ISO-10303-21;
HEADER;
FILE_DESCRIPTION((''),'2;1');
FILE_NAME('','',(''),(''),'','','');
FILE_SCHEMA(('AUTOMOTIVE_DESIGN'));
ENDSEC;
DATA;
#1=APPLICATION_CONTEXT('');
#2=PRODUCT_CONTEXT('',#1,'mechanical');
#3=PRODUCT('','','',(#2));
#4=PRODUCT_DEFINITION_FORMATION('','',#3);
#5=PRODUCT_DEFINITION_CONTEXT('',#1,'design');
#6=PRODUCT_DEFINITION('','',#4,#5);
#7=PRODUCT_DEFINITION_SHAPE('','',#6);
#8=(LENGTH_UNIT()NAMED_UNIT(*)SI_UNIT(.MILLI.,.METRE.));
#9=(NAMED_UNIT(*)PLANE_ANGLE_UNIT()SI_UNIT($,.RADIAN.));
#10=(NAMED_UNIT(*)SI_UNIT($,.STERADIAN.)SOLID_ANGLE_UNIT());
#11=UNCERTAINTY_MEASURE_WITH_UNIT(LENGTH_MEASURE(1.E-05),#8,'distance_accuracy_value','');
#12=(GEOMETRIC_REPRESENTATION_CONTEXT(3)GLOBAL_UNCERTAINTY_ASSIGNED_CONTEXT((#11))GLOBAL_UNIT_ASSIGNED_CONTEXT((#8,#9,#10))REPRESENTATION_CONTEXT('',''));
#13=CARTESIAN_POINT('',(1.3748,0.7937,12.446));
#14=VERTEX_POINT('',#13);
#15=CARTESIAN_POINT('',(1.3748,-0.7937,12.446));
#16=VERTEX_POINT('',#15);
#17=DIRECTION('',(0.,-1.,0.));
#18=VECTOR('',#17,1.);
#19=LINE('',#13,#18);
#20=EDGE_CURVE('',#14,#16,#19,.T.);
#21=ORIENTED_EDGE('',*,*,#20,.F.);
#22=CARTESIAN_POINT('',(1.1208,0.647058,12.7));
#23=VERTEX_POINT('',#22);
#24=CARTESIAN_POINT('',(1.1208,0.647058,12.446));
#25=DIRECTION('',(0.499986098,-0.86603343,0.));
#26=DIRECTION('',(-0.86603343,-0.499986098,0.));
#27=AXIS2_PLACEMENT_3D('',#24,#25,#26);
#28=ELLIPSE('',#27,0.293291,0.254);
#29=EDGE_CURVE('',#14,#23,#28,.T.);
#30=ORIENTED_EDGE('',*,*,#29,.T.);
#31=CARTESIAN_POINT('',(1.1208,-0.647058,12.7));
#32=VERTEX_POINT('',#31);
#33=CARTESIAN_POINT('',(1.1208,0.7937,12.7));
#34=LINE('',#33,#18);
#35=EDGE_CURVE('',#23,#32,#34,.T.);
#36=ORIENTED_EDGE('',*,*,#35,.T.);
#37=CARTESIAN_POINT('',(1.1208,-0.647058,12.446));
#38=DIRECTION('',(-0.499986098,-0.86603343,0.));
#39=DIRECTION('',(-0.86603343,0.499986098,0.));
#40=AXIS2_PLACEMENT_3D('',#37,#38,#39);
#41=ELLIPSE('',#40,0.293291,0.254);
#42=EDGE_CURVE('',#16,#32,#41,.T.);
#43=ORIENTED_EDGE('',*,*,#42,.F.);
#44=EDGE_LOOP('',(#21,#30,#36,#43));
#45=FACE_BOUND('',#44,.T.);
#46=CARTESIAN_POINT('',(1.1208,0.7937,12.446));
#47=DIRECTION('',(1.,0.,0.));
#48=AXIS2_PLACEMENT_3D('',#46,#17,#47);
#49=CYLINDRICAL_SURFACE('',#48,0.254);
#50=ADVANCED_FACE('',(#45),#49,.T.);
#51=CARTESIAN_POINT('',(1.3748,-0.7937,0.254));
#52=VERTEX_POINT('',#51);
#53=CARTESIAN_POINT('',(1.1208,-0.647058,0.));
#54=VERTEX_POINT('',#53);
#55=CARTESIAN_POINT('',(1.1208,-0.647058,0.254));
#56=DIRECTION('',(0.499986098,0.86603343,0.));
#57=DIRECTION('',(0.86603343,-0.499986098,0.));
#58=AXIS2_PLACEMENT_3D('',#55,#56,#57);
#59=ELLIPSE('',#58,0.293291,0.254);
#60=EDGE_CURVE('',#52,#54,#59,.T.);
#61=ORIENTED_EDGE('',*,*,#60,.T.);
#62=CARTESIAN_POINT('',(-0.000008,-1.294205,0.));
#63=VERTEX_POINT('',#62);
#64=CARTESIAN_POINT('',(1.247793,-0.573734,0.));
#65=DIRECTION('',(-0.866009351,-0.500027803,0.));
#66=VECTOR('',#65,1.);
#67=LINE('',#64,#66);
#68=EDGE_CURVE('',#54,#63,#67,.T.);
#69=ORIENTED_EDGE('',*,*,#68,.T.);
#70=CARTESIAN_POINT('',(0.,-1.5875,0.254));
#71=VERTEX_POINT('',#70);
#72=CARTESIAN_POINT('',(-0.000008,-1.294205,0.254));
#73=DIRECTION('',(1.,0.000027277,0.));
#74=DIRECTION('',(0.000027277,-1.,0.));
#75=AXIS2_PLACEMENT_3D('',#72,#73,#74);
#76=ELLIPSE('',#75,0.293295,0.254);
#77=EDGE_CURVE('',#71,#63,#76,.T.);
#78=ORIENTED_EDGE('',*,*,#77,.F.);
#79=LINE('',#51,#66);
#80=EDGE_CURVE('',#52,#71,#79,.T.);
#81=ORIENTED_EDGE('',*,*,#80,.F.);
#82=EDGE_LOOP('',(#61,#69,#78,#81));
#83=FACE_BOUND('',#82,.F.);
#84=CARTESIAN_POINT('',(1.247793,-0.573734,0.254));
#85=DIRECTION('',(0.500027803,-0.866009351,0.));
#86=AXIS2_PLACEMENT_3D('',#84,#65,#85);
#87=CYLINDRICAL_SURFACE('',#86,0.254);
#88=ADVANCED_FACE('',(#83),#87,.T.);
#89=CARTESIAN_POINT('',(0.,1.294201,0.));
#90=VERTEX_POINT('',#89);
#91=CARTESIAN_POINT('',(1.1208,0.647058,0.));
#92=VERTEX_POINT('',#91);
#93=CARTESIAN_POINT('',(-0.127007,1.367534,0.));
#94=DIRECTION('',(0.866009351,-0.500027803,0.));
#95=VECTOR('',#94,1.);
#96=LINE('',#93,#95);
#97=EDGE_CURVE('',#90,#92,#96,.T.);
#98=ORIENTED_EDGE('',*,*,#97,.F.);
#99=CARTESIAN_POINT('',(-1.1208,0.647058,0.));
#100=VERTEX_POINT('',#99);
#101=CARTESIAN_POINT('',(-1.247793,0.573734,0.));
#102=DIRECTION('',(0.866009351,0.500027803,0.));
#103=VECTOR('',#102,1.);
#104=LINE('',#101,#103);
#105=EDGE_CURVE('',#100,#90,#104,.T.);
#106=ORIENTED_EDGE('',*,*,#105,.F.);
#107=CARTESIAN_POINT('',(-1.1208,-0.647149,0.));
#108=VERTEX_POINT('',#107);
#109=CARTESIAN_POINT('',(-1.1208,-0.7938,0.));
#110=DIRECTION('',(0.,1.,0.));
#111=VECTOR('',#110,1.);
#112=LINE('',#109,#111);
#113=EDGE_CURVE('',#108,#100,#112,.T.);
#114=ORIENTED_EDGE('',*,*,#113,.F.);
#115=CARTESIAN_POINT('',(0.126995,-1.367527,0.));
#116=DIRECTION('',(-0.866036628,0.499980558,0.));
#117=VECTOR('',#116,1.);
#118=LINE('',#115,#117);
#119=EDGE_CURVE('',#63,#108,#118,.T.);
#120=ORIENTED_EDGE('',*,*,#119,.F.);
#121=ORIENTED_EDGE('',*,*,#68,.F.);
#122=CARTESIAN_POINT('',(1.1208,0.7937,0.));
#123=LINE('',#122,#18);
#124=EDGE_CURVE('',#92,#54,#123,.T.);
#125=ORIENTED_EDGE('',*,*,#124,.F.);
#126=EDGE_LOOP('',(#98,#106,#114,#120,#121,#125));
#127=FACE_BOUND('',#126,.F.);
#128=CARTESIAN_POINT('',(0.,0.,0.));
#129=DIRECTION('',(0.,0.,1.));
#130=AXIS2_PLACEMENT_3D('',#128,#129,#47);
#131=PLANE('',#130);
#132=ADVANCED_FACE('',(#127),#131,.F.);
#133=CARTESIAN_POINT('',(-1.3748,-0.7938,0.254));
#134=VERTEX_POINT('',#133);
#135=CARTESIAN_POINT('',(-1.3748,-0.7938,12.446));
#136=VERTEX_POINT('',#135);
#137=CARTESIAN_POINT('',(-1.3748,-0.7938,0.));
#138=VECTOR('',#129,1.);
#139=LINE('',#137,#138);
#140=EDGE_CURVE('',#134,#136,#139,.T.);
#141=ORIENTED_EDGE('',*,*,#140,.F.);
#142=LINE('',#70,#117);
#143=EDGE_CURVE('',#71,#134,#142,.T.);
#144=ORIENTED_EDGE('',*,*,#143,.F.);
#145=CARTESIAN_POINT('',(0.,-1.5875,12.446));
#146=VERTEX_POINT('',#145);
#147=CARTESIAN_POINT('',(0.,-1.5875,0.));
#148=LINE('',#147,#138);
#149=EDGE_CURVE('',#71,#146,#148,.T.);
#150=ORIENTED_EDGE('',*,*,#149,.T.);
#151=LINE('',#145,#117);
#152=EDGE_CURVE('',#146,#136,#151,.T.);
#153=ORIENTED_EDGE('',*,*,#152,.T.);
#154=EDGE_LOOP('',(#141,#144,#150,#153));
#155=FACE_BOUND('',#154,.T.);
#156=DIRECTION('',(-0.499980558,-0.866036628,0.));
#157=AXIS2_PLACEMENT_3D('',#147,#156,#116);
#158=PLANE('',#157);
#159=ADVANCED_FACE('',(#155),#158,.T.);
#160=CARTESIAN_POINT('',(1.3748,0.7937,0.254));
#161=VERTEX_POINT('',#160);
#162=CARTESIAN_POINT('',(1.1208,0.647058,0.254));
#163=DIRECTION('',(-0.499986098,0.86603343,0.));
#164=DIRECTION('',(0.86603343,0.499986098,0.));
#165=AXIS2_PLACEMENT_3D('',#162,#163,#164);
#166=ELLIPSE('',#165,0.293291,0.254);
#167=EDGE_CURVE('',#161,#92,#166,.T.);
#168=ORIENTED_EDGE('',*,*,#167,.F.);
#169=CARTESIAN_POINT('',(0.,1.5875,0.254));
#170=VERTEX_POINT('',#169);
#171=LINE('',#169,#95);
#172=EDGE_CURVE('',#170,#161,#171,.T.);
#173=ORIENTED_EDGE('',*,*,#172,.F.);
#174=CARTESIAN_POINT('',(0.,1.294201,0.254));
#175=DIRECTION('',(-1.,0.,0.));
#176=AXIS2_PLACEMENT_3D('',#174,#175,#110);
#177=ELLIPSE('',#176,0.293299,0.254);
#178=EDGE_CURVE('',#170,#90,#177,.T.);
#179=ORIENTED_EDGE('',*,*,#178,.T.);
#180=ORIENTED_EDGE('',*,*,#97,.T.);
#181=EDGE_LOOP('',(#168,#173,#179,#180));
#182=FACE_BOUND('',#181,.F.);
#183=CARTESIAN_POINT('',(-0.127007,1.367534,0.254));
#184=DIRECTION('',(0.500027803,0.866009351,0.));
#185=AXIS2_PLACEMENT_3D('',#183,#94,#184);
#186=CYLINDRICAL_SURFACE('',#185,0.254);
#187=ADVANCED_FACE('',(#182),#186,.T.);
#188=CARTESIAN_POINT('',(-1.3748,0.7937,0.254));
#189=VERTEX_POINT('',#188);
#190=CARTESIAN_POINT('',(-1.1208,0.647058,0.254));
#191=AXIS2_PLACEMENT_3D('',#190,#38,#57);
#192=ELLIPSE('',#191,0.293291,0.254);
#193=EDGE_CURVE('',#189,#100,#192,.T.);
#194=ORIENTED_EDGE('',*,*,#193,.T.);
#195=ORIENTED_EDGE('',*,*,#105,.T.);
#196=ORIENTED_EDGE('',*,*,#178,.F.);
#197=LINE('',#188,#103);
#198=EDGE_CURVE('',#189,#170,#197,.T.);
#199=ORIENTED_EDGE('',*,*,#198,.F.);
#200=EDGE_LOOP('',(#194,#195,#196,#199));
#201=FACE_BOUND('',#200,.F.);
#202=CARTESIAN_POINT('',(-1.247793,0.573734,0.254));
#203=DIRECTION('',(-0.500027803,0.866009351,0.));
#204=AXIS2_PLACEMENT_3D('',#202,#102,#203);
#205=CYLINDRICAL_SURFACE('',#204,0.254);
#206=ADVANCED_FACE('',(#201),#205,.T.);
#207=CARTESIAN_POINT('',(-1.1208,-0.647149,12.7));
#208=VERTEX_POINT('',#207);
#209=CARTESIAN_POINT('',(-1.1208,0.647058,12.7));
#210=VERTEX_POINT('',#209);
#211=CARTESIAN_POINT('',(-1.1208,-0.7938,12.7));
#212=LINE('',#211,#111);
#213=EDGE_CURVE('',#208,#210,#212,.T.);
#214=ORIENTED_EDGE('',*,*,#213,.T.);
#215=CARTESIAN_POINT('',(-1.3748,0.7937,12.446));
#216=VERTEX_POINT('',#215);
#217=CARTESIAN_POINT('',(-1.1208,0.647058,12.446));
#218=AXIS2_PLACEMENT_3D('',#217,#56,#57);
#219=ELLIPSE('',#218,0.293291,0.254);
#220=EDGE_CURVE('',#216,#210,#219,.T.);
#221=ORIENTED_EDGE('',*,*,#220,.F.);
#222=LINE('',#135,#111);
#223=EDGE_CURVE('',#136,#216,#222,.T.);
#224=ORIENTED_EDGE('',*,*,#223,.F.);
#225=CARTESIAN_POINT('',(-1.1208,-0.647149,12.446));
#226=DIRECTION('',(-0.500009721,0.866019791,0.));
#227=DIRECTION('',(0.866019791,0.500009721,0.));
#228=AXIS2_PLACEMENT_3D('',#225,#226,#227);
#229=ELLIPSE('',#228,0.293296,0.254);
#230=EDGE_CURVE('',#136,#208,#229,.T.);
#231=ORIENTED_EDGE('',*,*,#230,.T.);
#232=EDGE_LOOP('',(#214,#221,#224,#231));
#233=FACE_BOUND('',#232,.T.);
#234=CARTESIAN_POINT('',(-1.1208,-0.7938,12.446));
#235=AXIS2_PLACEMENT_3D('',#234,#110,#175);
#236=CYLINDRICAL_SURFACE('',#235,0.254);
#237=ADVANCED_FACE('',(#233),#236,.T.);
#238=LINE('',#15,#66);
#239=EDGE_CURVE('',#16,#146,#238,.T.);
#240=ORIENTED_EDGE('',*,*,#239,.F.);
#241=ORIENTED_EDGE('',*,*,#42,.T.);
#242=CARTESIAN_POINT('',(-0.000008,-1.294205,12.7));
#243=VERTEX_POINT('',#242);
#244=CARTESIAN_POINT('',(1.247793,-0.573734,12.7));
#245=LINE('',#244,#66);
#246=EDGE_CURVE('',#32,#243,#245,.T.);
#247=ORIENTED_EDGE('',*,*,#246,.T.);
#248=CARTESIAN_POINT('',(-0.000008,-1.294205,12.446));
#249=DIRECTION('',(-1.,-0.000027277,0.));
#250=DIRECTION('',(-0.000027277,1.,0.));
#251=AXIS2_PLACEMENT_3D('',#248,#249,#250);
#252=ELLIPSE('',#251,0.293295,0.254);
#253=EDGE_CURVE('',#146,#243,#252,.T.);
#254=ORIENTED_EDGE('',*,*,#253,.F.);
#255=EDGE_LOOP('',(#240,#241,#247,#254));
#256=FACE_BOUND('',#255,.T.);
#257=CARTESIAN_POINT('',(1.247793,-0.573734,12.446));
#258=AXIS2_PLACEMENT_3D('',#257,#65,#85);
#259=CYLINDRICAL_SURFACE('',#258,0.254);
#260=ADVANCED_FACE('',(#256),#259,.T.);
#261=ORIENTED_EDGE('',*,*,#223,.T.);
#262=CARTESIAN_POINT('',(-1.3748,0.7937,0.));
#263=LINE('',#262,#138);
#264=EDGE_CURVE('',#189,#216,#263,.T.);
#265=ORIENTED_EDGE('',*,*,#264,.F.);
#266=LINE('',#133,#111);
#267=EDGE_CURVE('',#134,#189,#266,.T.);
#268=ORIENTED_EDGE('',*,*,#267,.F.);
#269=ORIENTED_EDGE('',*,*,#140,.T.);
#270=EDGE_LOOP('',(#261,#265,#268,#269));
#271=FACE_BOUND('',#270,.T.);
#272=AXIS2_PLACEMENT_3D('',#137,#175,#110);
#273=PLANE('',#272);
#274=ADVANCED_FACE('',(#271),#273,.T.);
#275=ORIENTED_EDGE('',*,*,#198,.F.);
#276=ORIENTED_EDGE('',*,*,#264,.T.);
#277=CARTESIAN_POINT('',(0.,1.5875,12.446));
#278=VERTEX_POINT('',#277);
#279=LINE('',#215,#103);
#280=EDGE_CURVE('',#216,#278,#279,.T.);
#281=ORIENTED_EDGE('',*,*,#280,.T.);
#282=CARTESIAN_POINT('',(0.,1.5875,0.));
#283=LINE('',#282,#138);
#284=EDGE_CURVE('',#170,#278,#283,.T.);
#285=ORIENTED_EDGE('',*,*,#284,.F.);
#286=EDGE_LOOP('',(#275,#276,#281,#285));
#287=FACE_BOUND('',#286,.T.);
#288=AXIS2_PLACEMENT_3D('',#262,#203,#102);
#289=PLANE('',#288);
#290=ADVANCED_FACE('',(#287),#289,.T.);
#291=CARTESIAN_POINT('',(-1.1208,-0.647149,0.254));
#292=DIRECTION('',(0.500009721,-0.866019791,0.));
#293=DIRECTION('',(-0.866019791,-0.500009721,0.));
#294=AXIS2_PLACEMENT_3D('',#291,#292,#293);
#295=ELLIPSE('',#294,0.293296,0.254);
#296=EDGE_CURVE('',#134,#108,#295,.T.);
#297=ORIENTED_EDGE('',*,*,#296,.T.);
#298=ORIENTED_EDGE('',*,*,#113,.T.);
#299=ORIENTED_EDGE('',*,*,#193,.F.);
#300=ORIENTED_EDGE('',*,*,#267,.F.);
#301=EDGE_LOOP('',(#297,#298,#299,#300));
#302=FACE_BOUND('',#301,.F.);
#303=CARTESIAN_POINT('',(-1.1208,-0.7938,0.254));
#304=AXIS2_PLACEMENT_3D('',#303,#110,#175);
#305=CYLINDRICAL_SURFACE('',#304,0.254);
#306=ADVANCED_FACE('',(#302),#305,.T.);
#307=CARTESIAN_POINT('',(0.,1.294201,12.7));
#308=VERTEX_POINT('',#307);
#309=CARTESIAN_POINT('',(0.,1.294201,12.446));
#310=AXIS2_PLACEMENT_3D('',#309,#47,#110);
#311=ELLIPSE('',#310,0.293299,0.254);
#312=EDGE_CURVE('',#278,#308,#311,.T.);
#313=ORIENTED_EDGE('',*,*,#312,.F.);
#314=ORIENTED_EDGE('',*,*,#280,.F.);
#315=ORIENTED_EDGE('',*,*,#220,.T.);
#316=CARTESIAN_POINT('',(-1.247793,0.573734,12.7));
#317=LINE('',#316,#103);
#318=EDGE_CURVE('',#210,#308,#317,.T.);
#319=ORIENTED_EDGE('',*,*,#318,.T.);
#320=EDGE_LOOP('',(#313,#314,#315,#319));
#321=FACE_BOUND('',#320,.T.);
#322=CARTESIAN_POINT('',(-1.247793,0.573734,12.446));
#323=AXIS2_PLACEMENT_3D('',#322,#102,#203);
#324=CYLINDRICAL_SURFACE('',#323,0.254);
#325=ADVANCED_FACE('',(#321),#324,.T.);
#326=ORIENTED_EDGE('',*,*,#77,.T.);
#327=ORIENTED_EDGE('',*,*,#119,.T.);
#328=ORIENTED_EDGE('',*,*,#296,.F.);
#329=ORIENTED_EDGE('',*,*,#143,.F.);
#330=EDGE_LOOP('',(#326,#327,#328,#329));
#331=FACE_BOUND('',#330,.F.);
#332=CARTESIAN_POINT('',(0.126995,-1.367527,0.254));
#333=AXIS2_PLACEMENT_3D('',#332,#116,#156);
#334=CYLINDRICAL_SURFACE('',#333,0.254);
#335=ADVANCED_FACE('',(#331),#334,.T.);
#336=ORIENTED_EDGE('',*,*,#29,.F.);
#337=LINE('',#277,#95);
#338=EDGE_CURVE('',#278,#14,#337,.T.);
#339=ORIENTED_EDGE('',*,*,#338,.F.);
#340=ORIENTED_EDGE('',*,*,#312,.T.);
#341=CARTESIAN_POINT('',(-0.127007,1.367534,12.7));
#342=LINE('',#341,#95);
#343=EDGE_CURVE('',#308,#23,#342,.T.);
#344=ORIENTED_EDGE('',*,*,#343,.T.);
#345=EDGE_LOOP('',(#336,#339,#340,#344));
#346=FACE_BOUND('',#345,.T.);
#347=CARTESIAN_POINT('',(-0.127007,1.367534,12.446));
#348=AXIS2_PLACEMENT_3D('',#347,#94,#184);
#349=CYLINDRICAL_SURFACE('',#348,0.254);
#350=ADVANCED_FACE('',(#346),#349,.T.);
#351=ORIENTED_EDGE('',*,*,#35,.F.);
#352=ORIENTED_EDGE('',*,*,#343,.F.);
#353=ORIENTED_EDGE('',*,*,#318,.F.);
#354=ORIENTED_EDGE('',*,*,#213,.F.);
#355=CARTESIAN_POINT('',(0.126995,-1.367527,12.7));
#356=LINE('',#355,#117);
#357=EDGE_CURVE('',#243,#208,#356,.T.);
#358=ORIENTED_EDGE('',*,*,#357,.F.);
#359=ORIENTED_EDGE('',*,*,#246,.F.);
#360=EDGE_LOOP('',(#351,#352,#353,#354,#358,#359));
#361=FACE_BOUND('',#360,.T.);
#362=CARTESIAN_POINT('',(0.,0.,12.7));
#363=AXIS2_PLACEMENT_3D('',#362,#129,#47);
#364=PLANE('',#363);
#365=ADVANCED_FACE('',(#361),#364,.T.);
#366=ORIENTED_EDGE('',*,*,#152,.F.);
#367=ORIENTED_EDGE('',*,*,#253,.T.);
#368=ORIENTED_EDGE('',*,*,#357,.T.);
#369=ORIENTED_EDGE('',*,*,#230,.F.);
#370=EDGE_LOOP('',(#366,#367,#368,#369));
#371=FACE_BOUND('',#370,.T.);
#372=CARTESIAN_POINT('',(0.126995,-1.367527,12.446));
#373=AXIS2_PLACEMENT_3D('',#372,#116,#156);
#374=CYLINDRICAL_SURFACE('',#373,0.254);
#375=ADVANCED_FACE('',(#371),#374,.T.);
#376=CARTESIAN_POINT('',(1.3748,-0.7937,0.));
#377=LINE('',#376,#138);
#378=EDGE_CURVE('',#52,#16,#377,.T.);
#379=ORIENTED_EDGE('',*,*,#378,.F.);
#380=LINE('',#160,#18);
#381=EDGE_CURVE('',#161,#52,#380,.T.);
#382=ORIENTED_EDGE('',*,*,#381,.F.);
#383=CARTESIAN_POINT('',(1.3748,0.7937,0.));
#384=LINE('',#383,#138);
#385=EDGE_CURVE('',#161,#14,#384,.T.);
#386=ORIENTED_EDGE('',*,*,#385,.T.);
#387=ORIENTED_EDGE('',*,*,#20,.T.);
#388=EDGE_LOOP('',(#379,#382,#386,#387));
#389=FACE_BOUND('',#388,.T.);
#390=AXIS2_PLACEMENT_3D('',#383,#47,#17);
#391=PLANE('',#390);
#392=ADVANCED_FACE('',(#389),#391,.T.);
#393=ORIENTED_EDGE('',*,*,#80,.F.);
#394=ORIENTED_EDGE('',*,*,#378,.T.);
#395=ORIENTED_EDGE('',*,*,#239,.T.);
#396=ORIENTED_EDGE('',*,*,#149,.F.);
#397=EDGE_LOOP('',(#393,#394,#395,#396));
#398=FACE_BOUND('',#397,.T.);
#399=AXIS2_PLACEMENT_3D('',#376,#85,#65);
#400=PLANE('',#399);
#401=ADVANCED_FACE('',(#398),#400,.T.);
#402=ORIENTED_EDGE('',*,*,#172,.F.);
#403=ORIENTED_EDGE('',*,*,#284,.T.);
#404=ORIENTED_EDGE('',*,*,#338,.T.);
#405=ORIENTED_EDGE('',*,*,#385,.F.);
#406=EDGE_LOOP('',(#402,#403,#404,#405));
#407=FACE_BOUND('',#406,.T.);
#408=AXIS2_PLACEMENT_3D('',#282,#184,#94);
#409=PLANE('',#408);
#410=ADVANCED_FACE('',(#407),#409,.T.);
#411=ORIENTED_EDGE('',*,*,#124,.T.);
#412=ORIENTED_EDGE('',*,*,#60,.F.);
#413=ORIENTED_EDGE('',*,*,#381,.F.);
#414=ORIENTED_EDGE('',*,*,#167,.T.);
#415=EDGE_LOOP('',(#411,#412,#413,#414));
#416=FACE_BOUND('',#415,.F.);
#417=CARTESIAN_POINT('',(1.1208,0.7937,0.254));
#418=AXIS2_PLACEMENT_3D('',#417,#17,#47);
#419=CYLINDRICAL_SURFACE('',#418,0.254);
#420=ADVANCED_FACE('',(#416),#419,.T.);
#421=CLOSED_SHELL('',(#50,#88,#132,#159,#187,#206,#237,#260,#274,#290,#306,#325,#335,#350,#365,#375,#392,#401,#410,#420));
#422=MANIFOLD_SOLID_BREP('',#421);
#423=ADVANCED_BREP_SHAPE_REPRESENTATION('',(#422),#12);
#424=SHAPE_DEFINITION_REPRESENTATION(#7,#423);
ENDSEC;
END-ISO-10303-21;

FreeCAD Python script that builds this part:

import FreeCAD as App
import Part
import Sketcher
Q = App.Units.Quantity


def edges_at(feature, points):
    """Names of the edges that pass closest to the given points."""
    edges = feature.Shape.Edges
    near = lambda p: min(range(len(edges)), key=lambda i: edges[i].distToShape(Part.Vertex(*p))[0])
    return sorted({f"Edge{near(p) + 1}" for p in points})


def add_polygon(sketch, points):
    """Adds a closed chain of lines whose ends are joined by coincident constraints."""
    first, n = sketch.GeometryCount, len(points)
    for a, b in zip(points, points[1:] + points[:1]):
        sketch.addGeometry(Part.LineSegment(App.Vector(*a, 0), App.Vector(*b, 0)), False)
    for i in range(n):
        sketch.addConstraint(Sketcher.Constraint("Coincident", first + i, 2, first + (i + 1) % n, 1))

doc = App.newDocument("Part")
params = doc.addObject("Spreadsheet::Sheet", "Params")
for row, (alias, value) in enumerate([
    ("sketch1_height", "0.0625 in"),
    ("pad1_length", "0.5 in"),
    ("fillet_radius", "0.01 in"),
], start=1):
    params.set(f"A{row}", alias)
    params.set(f"B{row}", "=" + value)
    params.setAlias(f"B{row}", alias)

body = doc.addObject("PartDesign::Body", "Body")

# Sketch on XY plane
sketch1 = body.newObject("Sketcher::SketchObject", "Sketch")
sketch1.AttachmentSupport = (doc.getObject("XY_Plane"), [""])
sketch1.MapMode = "FlatFace"
add_polygon(sketch1, [(1.4, 0.8), (0, 1.6), (-1.4, 0.8), (-1.4, -0.8), (0, -1.6), (1.4, -0.8)])  # lines 0-5
sketch1.addConstraint([
    Sketcher.Constraint("Vertical", 2),
    Sketcher.Constraint("Vertical", 5),
    Sketcher.Constraint("Symmetric", 0, 2, 3, 2, -1, 1),
    Sketcher.Constraint("Symmetric", 1, 2, 4, 2, -1, 1),
    Sketcher.Constraint("PointOnObject", 0, 2, -2),
    Sketcher.Constraint("Parallel", 0, 3),
    Sketcher.Constraint("Horizontal", 2, 2, 4, 2),
    Sketcher.Constraint("DistanceY", 3, 2, 0, 2, Q("0.125 in")),
    Sketcher.Constraint("DistanceY", 2, 2, 2, 1, Q("0.0625 in")),
    Sketcher.Constraint("DistanceX", 1, 2, -1, 1, Q("1.3748 mm")),
])
sketch1.setExpression("Constraints[14]", "Params.sketch1_height")
pad1 = body.newObject("PartDesign::Pad", "Pad")
pad1.Profile = sketch1
pad1.setExpression("Length", "Params.pad1_length")
doc.recompute()

fillet = body.newObject("PartDesign::Fillet", "Fillet")
fillet.Base = (pad1, edges_at(pad1, [
    (-0.687, 1.191, 12.7),
    (-1.375, 0, 12.7),
    (-0.687, -1.191, 12.7),
    (0.687, -1.191, 12.7),
    (1.375, 0, 12.7),
    (0.687, 1.191, 12.7),
    (-0.687, 1.191, 0),
    (0.687, 1.191, 0),
    (1.375, 0, 0),
    (0.687, -1.191, 0),
    (-0.687, -1.191, 0),
    (-1.375, 0, 0),
]))
fillet.setExpression("Radius", "Params.fillet_radius")

doc.recompute()
